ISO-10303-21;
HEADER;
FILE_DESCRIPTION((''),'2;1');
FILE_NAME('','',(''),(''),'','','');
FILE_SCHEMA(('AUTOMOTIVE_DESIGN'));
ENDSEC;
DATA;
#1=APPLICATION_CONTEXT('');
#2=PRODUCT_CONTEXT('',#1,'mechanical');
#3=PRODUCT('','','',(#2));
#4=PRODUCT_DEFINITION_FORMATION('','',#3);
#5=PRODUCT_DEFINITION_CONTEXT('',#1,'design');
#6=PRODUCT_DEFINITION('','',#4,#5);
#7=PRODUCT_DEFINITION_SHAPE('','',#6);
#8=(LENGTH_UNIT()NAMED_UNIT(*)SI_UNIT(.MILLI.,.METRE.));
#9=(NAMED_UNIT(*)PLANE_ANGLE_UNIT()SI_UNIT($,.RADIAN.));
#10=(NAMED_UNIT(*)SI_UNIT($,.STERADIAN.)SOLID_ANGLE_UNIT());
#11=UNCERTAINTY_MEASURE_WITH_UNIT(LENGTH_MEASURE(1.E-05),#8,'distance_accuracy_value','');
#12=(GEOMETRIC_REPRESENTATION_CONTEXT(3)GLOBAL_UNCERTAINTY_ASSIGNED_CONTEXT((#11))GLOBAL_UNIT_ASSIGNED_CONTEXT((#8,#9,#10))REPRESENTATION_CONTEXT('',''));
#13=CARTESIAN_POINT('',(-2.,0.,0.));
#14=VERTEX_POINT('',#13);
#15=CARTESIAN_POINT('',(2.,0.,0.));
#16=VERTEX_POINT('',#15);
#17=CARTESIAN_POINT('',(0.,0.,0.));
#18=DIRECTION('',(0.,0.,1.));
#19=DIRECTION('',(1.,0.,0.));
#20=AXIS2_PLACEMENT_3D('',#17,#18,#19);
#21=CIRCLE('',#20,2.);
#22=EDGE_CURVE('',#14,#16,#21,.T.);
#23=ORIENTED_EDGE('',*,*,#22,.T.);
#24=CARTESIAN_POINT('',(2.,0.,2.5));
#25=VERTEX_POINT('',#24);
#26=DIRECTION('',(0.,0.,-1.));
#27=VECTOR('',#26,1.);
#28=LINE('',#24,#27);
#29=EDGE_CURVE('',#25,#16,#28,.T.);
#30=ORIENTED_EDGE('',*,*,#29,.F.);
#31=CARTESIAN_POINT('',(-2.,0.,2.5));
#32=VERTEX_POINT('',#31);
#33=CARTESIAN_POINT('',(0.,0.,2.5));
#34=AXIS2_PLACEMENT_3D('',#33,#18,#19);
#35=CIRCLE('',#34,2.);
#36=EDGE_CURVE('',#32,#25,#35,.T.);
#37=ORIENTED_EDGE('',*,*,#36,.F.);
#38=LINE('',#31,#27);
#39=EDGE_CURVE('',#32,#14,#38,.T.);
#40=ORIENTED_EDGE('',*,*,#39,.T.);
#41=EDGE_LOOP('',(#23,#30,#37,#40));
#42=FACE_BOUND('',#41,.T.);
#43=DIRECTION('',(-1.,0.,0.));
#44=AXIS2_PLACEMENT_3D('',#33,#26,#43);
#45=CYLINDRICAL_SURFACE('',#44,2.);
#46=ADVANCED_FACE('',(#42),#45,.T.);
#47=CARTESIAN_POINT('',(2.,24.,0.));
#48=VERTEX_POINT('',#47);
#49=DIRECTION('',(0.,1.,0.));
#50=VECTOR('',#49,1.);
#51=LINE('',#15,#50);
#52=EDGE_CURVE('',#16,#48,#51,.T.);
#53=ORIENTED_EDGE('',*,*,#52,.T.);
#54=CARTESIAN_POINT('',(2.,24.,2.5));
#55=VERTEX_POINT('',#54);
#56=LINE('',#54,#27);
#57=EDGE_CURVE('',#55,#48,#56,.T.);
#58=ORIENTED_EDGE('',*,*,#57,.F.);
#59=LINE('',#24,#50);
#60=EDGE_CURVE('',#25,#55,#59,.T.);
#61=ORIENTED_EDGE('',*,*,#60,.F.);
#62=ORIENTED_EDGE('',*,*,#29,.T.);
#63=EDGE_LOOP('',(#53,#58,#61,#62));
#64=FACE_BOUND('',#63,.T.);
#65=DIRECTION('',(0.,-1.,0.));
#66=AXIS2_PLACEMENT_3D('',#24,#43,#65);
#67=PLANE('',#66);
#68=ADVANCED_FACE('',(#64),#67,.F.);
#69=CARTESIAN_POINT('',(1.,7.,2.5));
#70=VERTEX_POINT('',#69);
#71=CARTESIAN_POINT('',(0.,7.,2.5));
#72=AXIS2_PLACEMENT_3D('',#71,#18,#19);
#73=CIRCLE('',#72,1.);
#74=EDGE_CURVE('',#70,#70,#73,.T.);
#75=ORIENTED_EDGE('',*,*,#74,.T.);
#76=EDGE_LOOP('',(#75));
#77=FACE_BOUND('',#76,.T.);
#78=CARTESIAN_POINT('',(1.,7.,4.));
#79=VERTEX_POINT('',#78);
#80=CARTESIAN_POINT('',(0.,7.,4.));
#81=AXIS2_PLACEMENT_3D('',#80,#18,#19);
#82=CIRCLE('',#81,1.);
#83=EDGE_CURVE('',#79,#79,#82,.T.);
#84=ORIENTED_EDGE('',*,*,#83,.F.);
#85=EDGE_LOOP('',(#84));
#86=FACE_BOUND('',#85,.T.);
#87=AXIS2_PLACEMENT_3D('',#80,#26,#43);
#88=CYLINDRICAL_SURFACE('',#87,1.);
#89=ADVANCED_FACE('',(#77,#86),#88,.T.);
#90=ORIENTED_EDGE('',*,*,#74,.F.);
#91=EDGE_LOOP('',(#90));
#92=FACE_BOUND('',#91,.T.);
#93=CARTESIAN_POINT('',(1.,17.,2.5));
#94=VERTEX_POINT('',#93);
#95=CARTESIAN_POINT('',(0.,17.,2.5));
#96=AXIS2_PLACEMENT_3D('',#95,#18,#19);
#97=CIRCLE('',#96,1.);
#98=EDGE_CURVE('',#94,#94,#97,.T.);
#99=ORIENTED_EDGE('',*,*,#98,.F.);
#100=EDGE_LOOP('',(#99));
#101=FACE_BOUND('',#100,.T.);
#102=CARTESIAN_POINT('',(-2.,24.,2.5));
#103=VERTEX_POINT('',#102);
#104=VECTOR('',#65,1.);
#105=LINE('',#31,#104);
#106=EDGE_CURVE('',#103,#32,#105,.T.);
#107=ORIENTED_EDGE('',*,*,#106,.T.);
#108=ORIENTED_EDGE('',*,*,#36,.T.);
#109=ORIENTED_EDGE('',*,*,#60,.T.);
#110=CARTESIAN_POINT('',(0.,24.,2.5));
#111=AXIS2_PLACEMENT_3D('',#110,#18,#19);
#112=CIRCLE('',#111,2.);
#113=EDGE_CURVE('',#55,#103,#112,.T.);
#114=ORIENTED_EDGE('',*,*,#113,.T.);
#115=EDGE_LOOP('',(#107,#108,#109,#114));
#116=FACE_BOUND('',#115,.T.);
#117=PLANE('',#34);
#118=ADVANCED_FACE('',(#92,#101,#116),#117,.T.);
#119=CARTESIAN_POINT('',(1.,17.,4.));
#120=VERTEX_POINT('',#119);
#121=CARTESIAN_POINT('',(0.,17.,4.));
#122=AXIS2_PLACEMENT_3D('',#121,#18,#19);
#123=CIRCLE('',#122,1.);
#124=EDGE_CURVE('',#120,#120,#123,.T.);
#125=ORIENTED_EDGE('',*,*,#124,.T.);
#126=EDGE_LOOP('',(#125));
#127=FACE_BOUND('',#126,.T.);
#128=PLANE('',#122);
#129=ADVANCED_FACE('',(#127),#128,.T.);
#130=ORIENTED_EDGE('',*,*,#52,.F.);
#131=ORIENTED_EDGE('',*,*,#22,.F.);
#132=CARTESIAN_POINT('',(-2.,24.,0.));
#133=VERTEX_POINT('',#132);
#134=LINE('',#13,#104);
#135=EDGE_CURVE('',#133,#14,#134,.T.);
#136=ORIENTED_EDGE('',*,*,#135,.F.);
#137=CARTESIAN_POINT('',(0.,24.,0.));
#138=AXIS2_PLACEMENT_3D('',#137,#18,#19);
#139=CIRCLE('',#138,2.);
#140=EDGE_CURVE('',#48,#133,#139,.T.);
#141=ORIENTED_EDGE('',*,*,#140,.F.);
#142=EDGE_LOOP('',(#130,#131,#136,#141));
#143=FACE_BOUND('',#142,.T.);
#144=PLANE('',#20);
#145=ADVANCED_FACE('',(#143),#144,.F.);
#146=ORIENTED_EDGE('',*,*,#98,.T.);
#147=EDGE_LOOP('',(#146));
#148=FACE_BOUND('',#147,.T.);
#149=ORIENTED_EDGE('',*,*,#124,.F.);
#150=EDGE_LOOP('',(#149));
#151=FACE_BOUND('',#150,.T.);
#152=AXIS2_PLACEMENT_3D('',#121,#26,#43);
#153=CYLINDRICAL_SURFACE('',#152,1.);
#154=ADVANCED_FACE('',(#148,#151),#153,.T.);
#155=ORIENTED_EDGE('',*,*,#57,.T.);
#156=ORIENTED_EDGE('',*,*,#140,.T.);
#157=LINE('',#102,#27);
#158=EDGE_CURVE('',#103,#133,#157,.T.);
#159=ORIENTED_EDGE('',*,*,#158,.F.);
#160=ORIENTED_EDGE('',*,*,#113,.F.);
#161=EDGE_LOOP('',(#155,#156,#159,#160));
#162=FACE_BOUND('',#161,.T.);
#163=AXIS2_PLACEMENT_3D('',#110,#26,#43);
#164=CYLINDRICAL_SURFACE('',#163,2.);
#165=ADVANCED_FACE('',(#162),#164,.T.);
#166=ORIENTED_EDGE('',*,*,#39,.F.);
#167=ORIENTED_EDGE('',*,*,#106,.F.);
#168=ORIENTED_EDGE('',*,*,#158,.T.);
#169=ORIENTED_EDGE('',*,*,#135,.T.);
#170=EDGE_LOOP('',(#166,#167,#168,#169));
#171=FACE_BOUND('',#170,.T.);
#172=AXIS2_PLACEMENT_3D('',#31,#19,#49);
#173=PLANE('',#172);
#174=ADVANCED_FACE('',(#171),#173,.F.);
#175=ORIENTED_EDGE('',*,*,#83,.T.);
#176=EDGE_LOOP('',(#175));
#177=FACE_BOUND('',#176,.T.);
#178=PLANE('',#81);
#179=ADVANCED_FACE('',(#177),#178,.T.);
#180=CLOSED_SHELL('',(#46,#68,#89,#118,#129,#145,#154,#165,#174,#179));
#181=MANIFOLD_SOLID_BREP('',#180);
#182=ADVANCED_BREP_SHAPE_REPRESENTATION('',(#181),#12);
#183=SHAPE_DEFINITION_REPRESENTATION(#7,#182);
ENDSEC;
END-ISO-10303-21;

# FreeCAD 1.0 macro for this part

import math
import FreeCAD as App
import Part
import Sketcher
Q = App.Units.Quantity

doc = App.newDocument("Part")
body = doc.addObject("PartDesign::Body", "Body")

sketch1 = body.newObject("Sketcher::SketchObject", "Sketch")
sketch1.AttachmentSupport = (doc.getObject("XY_Plane"), [""])
sketch1.MapMode = "FlatFace"
sketch1.addGeometry(Part.LineSegment(App.Vector(-2, 24, 0), App.Vector(-2, 0, 0)), False)
sketch1.addGeometry(Part.ArcOfCircle(Part.Circle(App.Vector(0, 0, 0), App.Vector(0, 0, 1), 2), math.radians(180), math.radians(360)), False)
sketch1.addGeometry(Part.LineSegment(App.Vector(2, 0, 0), App.Vector(2, 24, 0)), False)
sketch1.addGeometry(Part.ArcOfCircle(Part.Circle(App.Vector(0, 24, 0), App.Vector(0, 0, 1), 2), math.radians(0), math.radians(180)), False)
sketch1.addConstraint(Sketcher.Constraint("Tangent", 0, 2, 1, 1))
sketch1.addConstraint(Sketcher.Constraint("Tangent", 1, 2, 2, 1))
sketch1.addConstraint(Sketcher.Constraint("Tangent", 2, 2, 3, 1))
sketch1.addConstraint(Sketcher.Constraint("Tangent", 3, 2, 0, 1))
sketch1.addConstraint(Sketcher.Constraint("Vertical", 0))
sketch1.addConstraint(Sketcher.Constraint("Vertical", 2))
sketch1.addConstraint(Sketcher.Constraint("Coincident", 1, 3, -1, 1))
sketch1.addConstraint(Sketcher.Constraint("Radius", 1, Q("2 mm")))
sketch1.addConstraint(Sketcher.Constraint("DistanceY", 0, 2, 0, 1, Q("24 mm")))
pad1 = body.newObject("PartDesign::Pad", "Pad")
pad1.Profile = sketch1
pad1.Length = 2.5

sketch2 = body.newObject("Sketcher::SketchObject", "Sketch001")
sketch2.AttachmentSupport = (doc.getObject("XY_Plane"), [""])
sketch2.MapMode = "FlatFace"
sketch2.AttachmentOffset = App.Placement(App.Vector(0, 0, 2.5), App.Rotation())
sketch2.addGeometry(Part.Circle(App.Vector(0, 17, 0), App.Vector(0, 0, 1), 1), False)
sketch2.addGeometry(Part.Circle(App.Vector(0, 7, 0), App.Vector(0, 0, 1), 1), False)
sketch2.addConstraint(Sketcher.Constraint("Equal", 0, 1))
sketch2.addConstraint(Sketcher.Constraint("PointOnObject", 0, 3, -2))
sketch2.addConstraint(Sketcher.Constraint("PointOnObject", 1, 3, -2))
sketch2.addConstraint(Sketcher.Constraint("Diameter", 0, Q("2 mm")))
sketch2.addConstraint(Sketcher.Constraint("DistanceY", -1, 1, 0, 3, Q("17 mm")))
sketch2.addConstraint(Sketcher.Constraint("DistanceY", -1, 1, 1, 3, Q("7 mm")))
pad2 = body.newObject("PartDesign::Pad", "Pad001")
pad2.Profile = sketch2
pad2.Length = 1.5

doc.recompute()
